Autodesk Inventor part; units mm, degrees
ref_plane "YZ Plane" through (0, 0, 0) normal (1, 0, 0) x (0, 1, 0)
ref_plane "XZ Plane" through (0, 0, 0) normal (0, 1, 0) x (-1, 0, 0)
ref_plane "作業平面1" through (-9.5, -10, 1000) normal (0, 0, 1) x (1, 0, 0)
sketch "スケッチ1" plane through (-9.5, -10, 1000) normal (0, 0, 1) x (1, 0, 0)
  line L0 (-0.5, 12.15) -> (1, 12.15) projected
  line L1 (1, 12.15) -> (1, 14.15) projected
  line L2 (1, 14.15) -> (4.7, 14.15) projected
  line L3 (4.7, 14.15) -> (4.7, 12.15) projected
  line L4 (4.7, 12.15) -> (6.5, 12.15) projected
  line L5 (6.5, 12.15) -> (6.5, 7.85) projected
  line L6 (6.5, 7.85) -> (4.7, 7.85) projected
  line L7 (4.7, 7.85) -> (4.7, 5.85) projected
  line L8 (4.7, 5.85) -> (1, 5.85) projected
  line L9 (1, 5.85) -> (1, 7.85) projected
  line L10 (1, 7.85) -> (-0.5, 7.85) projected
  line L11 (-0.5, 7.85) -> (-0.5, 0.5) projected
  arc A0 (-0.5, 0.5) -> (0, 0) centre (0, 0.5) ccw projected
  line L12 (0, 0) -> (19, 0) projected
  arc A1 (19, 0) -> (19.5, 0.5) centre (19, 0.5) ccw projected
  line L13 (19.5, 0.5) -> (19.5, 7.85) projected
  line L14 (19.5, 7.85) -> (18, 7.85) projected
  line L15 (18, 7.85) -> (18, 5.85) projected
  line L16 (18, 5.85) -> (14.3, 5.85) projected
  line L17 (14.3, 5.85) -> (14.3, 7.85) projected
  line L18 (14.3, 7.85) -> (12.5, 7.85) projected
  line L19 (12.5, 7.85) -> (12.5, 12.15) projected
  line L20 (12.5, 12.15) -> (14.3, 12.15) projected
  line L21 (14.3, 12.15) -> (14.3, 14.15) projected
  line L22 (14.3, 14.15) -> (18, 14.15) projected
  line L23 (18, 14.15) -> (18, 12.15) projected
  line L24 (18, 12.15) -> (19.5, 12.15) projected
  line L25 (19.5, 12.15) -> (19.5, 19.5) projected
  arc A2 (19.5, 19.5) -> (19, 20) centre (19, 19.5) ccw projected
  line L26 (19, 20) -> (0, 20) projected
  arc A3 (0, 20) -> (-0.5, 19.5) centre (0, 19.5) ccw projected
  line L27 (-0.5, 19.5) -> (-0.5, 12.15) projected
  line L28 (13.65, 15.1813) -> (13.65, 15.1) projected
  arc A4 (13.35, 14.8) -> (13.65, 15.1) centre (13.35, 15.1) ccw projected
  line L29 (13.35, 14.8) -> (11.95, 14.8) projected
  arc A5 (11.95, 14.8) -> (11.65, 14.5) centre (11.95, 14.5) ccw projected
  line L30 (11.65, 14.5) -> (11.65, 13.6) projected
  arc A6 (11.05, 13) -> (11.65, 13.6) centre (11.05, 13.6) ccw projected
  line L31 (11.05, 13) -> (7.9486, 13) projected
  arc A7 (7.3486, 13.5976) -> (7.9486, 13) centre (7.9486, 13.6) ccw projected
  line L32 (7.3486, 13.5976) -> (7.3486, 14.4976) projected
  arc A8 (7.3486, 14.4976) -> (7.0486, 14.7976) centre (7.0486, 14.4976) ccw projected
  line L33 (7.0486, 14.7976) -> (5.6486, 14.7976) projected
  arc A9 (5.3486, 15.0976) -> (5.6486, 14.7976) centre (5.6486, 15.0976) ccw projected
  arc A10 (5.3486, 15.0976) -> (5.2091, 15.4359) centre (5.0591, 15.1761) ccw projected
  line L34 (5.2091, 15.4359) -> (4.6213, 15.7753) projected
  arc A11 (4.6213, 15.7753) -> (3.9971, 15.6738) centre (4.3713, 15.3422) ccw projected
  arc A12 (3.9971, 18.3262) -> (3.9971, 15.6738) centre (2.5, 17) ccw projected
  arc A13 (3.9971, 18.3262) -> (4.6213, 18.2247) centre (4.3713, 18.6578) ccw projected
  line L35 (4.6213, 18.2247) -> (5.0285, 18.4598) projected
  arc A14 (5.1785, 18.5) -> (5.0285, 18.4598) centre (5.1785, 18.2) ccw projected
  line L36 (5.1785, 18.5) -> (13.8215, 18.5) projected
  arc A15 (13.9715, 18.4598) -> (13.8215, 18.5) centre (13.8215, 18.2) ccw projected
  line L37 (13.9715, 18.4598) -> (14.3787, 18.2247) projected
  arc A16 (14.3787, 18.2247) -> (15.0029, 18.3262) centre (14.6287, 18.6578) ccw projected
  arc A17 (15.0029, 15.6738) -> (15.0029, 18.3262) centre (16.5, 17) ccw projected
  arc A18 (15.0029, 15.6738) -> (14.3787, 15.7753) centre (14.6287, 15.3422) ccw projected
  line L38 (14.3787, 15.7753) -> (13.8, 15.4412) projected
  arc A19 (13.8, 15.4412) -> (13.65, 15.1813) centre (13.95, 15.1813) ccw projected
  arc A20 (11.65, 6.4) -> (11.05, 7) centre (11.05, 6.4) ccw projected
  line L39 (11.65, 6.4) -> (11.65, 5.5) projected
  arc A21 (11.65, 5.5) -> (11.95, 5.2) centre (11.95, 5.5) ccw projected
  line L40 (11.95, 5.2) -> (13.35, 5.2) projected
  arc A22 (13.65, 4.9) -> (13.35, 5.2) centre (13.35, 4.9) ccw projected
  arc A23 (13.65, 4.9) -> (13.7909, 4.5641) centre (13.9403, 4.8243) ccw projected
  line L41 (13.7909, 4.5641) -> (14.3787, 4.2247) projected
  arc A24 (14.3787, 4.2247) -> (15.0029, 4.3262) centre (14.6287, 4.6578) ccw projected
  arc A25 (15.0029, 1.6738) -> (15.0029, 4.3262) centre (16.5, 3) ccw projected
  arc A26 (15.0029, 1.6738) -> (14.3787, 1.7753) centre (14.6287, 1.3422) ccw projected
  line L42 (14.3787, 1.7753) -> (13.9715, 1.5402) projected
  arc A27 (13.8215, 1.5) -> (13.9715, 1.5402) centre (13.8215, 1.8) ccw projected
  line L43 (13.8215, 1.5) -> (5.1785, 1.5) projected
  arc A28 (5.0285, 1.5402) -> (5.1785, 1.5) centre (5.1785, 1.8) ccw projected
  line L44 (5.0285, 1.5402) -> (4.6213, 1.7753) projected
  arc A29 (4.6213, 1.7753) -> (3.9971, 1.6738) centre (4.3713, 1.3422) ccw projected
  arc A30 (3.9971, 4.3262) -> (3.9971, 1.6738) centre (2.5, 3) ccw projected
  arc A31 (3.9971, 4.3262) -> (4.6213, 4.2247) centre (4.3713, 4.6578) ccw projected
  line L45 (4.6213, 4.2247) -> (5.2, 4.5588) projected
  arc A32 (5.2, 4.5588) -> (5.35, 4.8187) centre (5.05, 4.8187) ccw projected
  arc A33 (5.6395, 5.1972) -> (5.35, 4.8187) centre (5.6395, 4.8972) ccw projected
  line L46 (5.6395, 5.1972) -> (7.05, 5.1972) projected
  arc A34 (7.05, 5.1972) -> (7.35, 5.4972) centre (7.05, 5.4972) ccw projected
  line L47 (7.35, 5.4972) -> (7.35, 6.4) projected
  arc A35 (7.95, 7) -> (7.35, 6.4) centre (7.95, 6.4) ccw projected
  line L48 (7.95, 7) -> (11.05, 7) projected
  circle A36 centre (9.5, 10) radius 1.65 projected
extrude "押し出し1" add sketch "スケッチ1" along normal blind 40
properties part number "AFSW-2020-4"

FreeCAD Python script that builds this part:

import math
import FreeCAD as App
import Part
import Sketcher
from FreeCAD import Vector
Q = App.Units.Quantity

doc = App.newDocument("Part")
body = doc.addObject("PartDesign::Body", "Body")

# Sketch on XY plane
sketch1 = body.newObject("Sketcher::SketchObject", "Sketch")
sketch1.AttachmentSupport = (doc.getObject("XY_Plane"), [""])
sketch1.MapMode = "FlatFace"
sketch1.AttachmentOffset = App.Placement(Vector(0, 0, 1000), App.Rotation())
sketch1.addGeometry([
    Part.LineSegment(Vector(-10, 9.5, 0), Vector(-10, 2.15, 0)),  # 0
    Part.LineSegment(Vector(-10, 2.15, 0), Vector(-8.5, 2.15, 0)),  # 1
    Part.LineSegment(Vector(-8.5, 2.15, 0), Vector(-8.5, 4.15, 0)),  # 2
    Part.LineSegment(Vector(-8.5, 4.15, 0), Vector(-4.8, 4.15, 0)),  # 3
    Part.LineSegment(Vector(-4.8, 4.15, 0), Vector(-4.8, 2.15, 0)),  # 4
    Part.LineSegment(Vector(-4.8, 2.15, 0), Vector(-3, 2.15, 0)),  # 5
    Part.LineSegment(Vector(-3, 2.15, 0), Vector(-3, -2.15, 0)),  # 6
    Part.LineSegment(Vector(-3, -2.15, 0), Vector(-4.8, -2.15, 0)),  # 7
    Part.LineSegment(Vector(-4.8, -2.15, 0), Vector(-4.8, -4.15, 0)),  # 8
    Part.LineSegment(Vector(-4.8, -4.15, 0), Vector(-8.5, -4.15, 0)),  # 9
    Part.LineSegment(Vector(-8.5, -4.15, 0), Vector(-8.5, -2.15, 0)),  # 10
    Part.LineSegment(Vector(-8.5, -2.15, 0), Vector(-10, -2.15, 0)),  # 11
    Part.LineSegment(Vector(-10, -2.15, 0), Vector(-10, -9.5, 0)),  # 12
    Part.ArcOfCircle(Part.Circle(Vector(-9.5, -9.5, 0), Vector(0, 0, 1), 0.5), math.radians(180), math.radians(270)),  # 13
    Part.LineSegment(Vector(-9.5, -10, 0), Vector(9.5, -10, 0)),  # 14
    Part.ArcOfCircle(Part.Circle(Vector(9.5, -9.5, 0), Vector(0, 0, 1), 0.5), math.radians(-90), math.radians(0)),  # 15
    Part.LineSegment(Vector(10, -9.5, 0), Vector(10, -2.15, 0)),  # 16
    Part.LineSegment(Vector(10, -2.15, 0), Vector(8.5, -2.15, 0)),  # 17
    Part.LineSegment(Vector(8.5, -2.15, 0), Vector(8.5, -4.15, 0)),  # 18
    Part.LineSegment(Vector(8.5, -4.15, 0), Vector(4.8, -4.15, 0)),  # 19
    Part.LineSegment(Vector(4.8, -4.15, 0), Vector(4.8, -2.15, 0)),  # 20
    Part.LineSegment(Vector(4.8, -2.15, 0), Vector(3, -2.15, 0)),  # 21
    Part.LineSegment(Vector(3, -2.15, 0), Vector(3, 2.15, 0)),  # 22
    Part.LineSegment(Vector(3, 2.15, 0), Vector(4.8, 2.15, 0)),  # 23
    Part.LineSegment(Vector(4.8, 2.15, 0), Vector(4.8, 4.15, 0)),  # 24
    Part.LineSegment(Vector(4.8, 4.15, 0), Vector(8.5, 4.15, 0)),  # 25
    Part.LineSegment(Vector(8.5, 4.15, 0), Vector(8.5, 2.15, 0)),  # 26
    Part.LineSegment(Vector(8.5, 2.15, 0), Vector(10, 2.15, 0)),  # 27
    Part.LineSegment(Vector(10, 2.15, 0), Vector(10, 9.5, 0)),  # 28
    Part.ArcOfCircle(Part.Circle(Vector(9.5, 9.5, 0), Vector(0, 0, 1), 0.5), math.radians(0), math.radians(90)),  # 29
    Part.LineSegment(Vector(9.5, 10, 0), Vector(-9.5, 10, 0)),  # 30
    Part.ArcOfCircle(Part.Circle(Vector(-9.5, 9.5, 0), Vector(0, 0, 1), 0.5), math.radians(90), math.radians(180)),  # 31
    Part.ArcOfCircle(Part.Circle(Vector(1.55, -3.6, 0), Vector(0, 0, 1), 0.6), math.radians(0), math.radians(90)),  # 32
    Part.LineSegment(Vector(2.15, -3.6, 0), Vector(2.15, -4.5, 0)),  # 33
    Part.ArcOfCircle(Part.Circle(Vector(2.45, -4.5, 0), Vector(0, 0, 1), 0.3), math.radians(180), math.radians(270)),  # 34
    Part.LineSegment(Vector(2.45, -4.8, 0), Vector(3.85, -4.8, 0)),  # 35
    Part.ArcOfCircle(Part.Circle(Vector(3.85, -5.1, 0), Vector(0, 0, 1), 0.3), math.radians(0), math.radians(90)),  # 36
    Part.ArcOfCircle(Part.Circle(Vector(4.44, -5.18, 0), Vector(0, 0, 1), 0.3), math.radians(165), math.radians(240)),  # 37
    Part.LineSegment(Vector(4.29, -5.44, 0), Vector(4.88, -5.78, 0)),  # 38
    Part.ArcOfCircle(Part.Circle(Vector(5.13, -5.34, 0), Vector(0, 0, 1), 0.5), math.radians(-120), math.radians(-42)),  # 39
    Part.ArcOfCircle(Part.Circle(Vector(7, -7, 0), Vector(0, 0, 1), 2), math.radians(-138), math.radians(138)),  # 40
    Part.ArcOfCircle(Part.Circle(Vector(5.13, -8.66, 0), Vector(0, 0, 1), 0.5), math.radians(42), math.radians(120)),  # 41
    Part.LineSegment(Vector(4.88, -8.22, 0), Vector(4.47, -8.46, 0)),  # 42
    Part.ArcOfCircle(Part.Circle(Vector(4.32, -8.2, 0), Vector(0, 0, 1), 0.3), math.radians(-90), math.radians(-60)),  # 43
    Part.LineSegment(Vector(4.32, -8.5, 0), Vector(-4.32, -8.5, 0)),  # 44
    Part.ArcOfCircle(Part.Circle(Vector(-4.32, -8.2, 0), Vector(0, 0, 1), 0.3), math.radians(-120), math.radians(-90)),  # 45
    Part.LineSegment(Vector(-4.47, -8.46, 0), Vector(-4.88, -8.22, 0)),  # 46
    Part.ArcOfCircle(Part.Circle(Vector(-5.13, -8.66, 0), Vector(0, 0, 1), 0.5), math.radians(60), math.radians(138)),  # 47
    Part.ArcOfCircle(Part.Circle(Vector(-7, -7, 0), Vector(0, 0, 1), 2), math.radians(42), math.radians(318)),  # 48
    Part.ArcOfCircle(Part.Circle(Vector(-5.13, -5.34, 0), Vector(0, 0, 1), 0.5), math.radians(-138), math.radians(-60)),  # 49
    Part.LineSegment(Vector(-4.88, -5.78, 0), Vector(-4.3, -5.44, 0)),  # 50
    Part.ArcOfCircle(Part.Circle(Vector(-4.45, -5.18, 0), Vector(0, 0, 1), 0.3), math.radians(-60), math.radians(0)),  # 51
    Part.ArcOfCircle(Part.Circle(Vector(-3.86, -5.1, 0), Vector(0, 0, 1), 0.3), math.radians(90), math.radians(195)),  # 52
    Part.LineSegment(Vector(-3.86, -4.8, 0), Vector(-2.45, -4.8, 0)),  # 53
    Part.ArcOfCircle(Part.Circle(Vector(-2.45, -4.5, 0), Vector(0, 0, 1), 0.3), math.radians(-90), math.radians(0)),  # 54
    Part.LineSegment(Vector(-2.15, -4.5, 0), Vector(-2.15, -3.6, 0)),  # 55
    Part.ArcOfCircle(Part.Circle(Vector(-1.55, -3.6, 0), Vector(0, 0, 1), 0.6), math.radians(90), math.radians(180)),  # 56
    Part.LineSegment(Vector(-1.55, -3, 0), Vector(1.55, -3, 0)),  # 57
    Part.Circle(Vector(0, 0, 0), Vector(0, 0, 1), 1.65),  # 58
    Part.ArcOfCircle(Part.Circle(Vector(4.45, 5.18, 0), Vector(0, 0, 1), 0.3), math.radians(120), math.radians(180)),  # 59
    Part.LineSegment(Vector(4.15, 5.18, 0), Vector(4.15, 5.1, 0)),  # 60
    Part.ArcOfCircle(Part.Circle(Vector(3.85, 5.1, 0), Vector(0, 0, 1), 0.3), math.radians(-90), math.radians(0)),  # 61
    Part.LineSegment(Vector(3.85, 4.8, 0), Vector(2.45, 4.8, 0)),  # 62
    Part.ArcOfCircle(Part.Circle(Vector(2.45, 4.5, 0), Vector(0, 0, 1), 0.3), math.radians(90), math.radians(180)),  # 63
    Part.LineSegment(Vector(2.15, 4.5, 0), Vector(2.15, 3.6, 0)),  # 64
    Part.ArcOfCircle(Part.Circle(Vector(1.55, 3.6, 0), Vector(0, 0, 1), 0.6), math.radians(-90), math.radians(0)),  # 65
    Part.LineSegment(Vector(1.55, 3, 0), Vector(-1.55, 3, 0)),  # 66
    Part.ArcOfCircle(Part.Circle(Vector(-1.55, 3.6, 0), Vector(0, 0, 1), 0.6), math.radians(-180), math.radians(-90)),  # 67
    Part.LineSegment(Vector(-2.15, 3.6, 0), Vector(-2.15, 4.5, 0)),  # 68
    Part.ArcOfCircle(Part.Circle(Vector(-2.45, 4.5, 0), Vector(0, 0, 1), 0.3), math.radians(0), math.radians(90)),  # 69
    Part.LineSegment(Vector(-2.45, 4.8, 0), Vector(-3.85, 4.8, 0)),  # 70
    Part.ArcOfCircle(Part.Circle(Vector(-3.85, 5.1, 0), Vector(0, 0, 1), 0.3), math.radians(180), math.radians(270)),  # 71
    Part.ArcOfCircle(Part.Circle(Vector(-4.44, 5.18, 0), Vector(0, 0, 1), 0.3), math.radians(-15), math.radians(60)),  # 72
    Part.LineSegment(Vector(-4.29, 5.44, 0), Vector(-4.88, 5.78, 0)),  # 73
    Part.ArcOfCircle(Part.Circle(Vector(-5.13, 5.34, 0), Vector(0, 0, 1), 0.5), math.radians(60), math.radians(138)),  # 74
    Part.ArcOfCircle(Part.Circle(Vector(-7, 7, 0), Vector(0, 0, 1), 2), math.radians(42), math.radians(318)),  # 75
    Part.ArcOfCircle(Part.Circle(Vector(-5.13, 8.66, 0), Vector(0, 0, 1), 0.5), math.radians(-138), math.radians(-60)),  # 76
    Part.LineSegment(Vector(-4.88, 8.22, 0), Vector(-4.47, 8.46, 0)),  # 77
    Part.ArcOfCircle(Part.Circle(Vector(-4.32, 8.2, 0), Vector(0, 0, 1), 0.3), math.radians(90), math.radians(120)),  # 78
    Part.LineSegment(Vector(-4.32, 8.5, 0), Vector(4.32, 8.5, 0)),  # 79
    Part.ArcOfCircle(Part.Circle(Vector(4.32, 8.2, 0), Vector(0, 0, 1), 0.3), math.radians(60), math.radians(90)),  # 80
    Part.LineSegment(Vector(4.47, 8.46, 0), Vector(4.88, 8.22, 0)),  # 81
    Part.ArcOfCircle(Part.Circle(Vector(5.13, 8.66, 0), Vector(0, 0, 1), 0.5), math.radians(-120), math.radians(-42)),  # 82
    Part.ArcOfCircle(Part.Circle(Vector(7, 7, 0), Vector(0, 0, 1), 2), math.radians(-138), math.radians(138)),  # 83
    Part.ArcOfCircle(Part.Circle(Vector(5.13, 5.34, 0), Vector(0, 0, 1), 0.5), math.radians(42), math.radians(120)),  # 84
    Part.LineSegment(Vector(4.88, 5.78, 0), Vector(4.3, 5.44, 0)),  # 85
], False)
sketch1.addConstraint([
    Sketcher.Constraint("Coincident", 0, 2, 1, 1),
    Sketcher.Constraint("Coincident", 1, 2, 2, 1),
    Sketcher.Constraint("Coincident", 2, 2, 3, 1),
    Sketcher.Constraint("Coincident", 3, 2, 4, 1),
    Sketcher.Constraint("Coincident", 4, 2, 5, 1),
    Sketcher.Constraint("Coincident", 5, 2, 6, 1),
    Sketcher.Constraint("Coincident", 6, 2, 7, 1),
    Sketcher.Constraint("Coincident", 7, 2, 8, 1),
    Sketcher.Constraint("Coincident", 8, 2, 9, 1),
    Sketcher.Constraint("Coincident", 9, 2, 10, 1),
    Sketcher.Constraint("Coincident", 10, 2, 11, 1),
    Sketcher.Constraint("Coincident", 11, 2, 12, 1),
    Sketcher.Constraint("Tangent", 12, 2, 13, 1),
    Sketcher.Constraint("Tangent", 13, 2, 14, 1),
    Sketcher.Constraint("Tangent", 14, 2, 15, 1),
    Sketcher.Constraint("Tangent", 15, 2, 16, 1),
    Sketcher.Constraint("Coincident", 16, 2, 17, 1),
    Sketcher.Constraint("Coincident", 17, 2, 18, 1),
    Sketcher.Constraint("Coincident", 18, 2, 19, 1),
    Sketcher.Constraint("Coincident", 19, 2, 20, 1),
    Sketcher.Constraint("Coincident", 20, 2, 21, 1),
    Sketcher.Constraint("Coincident", 21, 2, 22, 1),
    Sketcher.Constraint("Coincident", 22, 2, 23, 1),
    Sketcher.Constraint("Coincident", 23, 2, 24, 1),
    Sketcher.Constraint("Coincident", 24, 2, 25, 1),
    Sketcher.Constraint("Coincident", 25, 2, 26, 1),
    Sketcher.Constraint("Coincident", 26, 2, 27, 1),
    Sketcher.Constraint("Coincident", 27, 2, 28, 1),
    Sketcher.Constraint("Tangent", 28, 2, 29, 1),
    Sketcher.Constraint("Tangent", 29, 2, 30, 1),
    Sketcher.Constraint("Tangent", 30, 2, 31, 1),
    Sketcher.Constraint("Tangent", 31, 2, 0, 1),
    Sketcher.Constraint("Tangent", 32, 1, 33, 1),
    Sketcher.Constraint("Tangent", 33, 2, 34, 1),
    Sketcher.Constraint("Tangent", 34, 2, 35, 1),
    Sketcher.Constraint("Tangent", 35, 2, 36, 2),
    Sketcher.Constraint("Coincident", 36, 1, 37, 1),
    Sketcher.Constraint("Coincident", 37, 2, 38, 1),
    Sketcher.Constraint("Tangent", 38, 2, 39, 1),
    Sketcher.Constraint("Tangent", 39, 2, 40, 2),
    Sketcher.Constraint("Tangent", 40, 1, 41, 1),
    Sketcher.Constraint("Tangent", 41, 2, 42, 1),
    Sketcher.Constraint("Tangent", 42, 2, 43, 2),
    Sketcher.Constraint("Tangent", 43, 1, 44, 1),
    Sketcher.Constraint("Tangent", 44, 2, 45, 2),
    Sketcher.Constraint("Tangent", 45, 1, 46, 1),
    Sketcher.Constraint("Tangent", 46, 2, 47, 1),
    Sketcher.Constraint("Tangent", 47, 2, 48, 2),
    Sketcher.Constraint("Tangent", 48, 1, 49, 1),
    Sketcher.Constraint("Tangent", 49, 2, 50, 1),
    Sketcher.Constraint("Tangent", 50, 2, 51, 1),
    Sketcher.Constraint("Coincident", 51, 2, 52, 2),
    Sketcher.Constraint("Tangent", 52, 1, 53, 1),
    Sketcher.Constraint("Tangent", 53, 2, 54, 1),
    Sketcher.Constraint("Tangent", 54, 2, 55, 1),
    Sketcher.Constraint("Tangent", 55, 2, 56, 2),
    Sketcher.Constraint("Tangent", 56, 1, 57, 1),
    Sketcher.Constraint("Tangent", 57, 2, 32, 2),
    Sketcher.Constraint("Tangent", 59, 2, 60, 1),
    Sketcher.Constraint("Tangent", 60, 2, 61, 2),
    Sketcher.Constraint("Tangent", 61, 1, 62, 1),
    Sketcher.Constraint("Tangent", 62, 2, 63, 1),
    Sketcher.Constraint("Tangent", 63, 2, 64, 1),
    Sketcher.Constraint("Tangent", 64, 2, 65, 2),
    Sketcher.Constraint("Tangent", 65, 1, 66, 1),
    Sketcher.Constraint("Tangent", 66, 2, 67, 2),
    Sketcher.Constraint("Coincident", 67, 1, 68, 1),
    Sketcher.Constraint("Tangent", 68, 2, 69, 1),
    Sketcher.Constraint("Tangent", 69, 2, 70, 1),
    Sketcher.Constraint("Tangent", 70, 2, 71, 2),
    Sketcher.Constraint("Coincident", 71, 1, 72, 1),
    Sketcher.Constraint("Tangent", 72, 2, 73, 1),
    Sketcher.Constraint("Tangent", 73, 2, 74, 1),
    Sketcher.Constraint("Tangent", 74, 2, 75, 2),
    Sketcher.Constraint("Tangent", 75, 1, 76, 1),
    Sketcher.Constraint("Tangent", 76, 2, 77, 1),
    Sketcher.Constraint("Tangent", 77, 2, 78, 2),
    Sketcher.Constraint("Tangent", 78, 1, 79, 1),
    Sketcher.Constraint("Tangent", 79, 2, 80, 2),
    Sketcher.Constraint("Tangent", 80, 1, 81, 1),
    Sketcher.Constraint("Tangent", 81, 2, 82, 1),
    Sketcher.Constraint("Tangent", 82, 2, 83, 2),
    Sketcher.Constraint("Tangent", 83, 1, 84, 1),
    Sketcher.Constraint("Tangent", 84, 2, 85, 1),
    Sketcher.Constraint("Tangent", 85, 2, 59, 1),
    Sketcher.Constraint("Vertical", 0),
    Sketcher.Constraint("Horizontal", 1),
    Sketcher.Constraint("Vertical", 2),
    Sketcher.Constraint("Horizontal", 3),
    Sketcher.Constraint("Vertical", 4),
    Sketcher.Constraint("Horizontal", 5),
    Sketcher.Constraint("Vertical", 6),
    Sketcher.Constraint("Horizontal", 7),
    Sketcher.Constraint("Vertical", 8),
    Sketcher.Constraint("Horizontal", 9),
    Sketcher.Constraint("Vertical", 10),
    Sketcher.Constraint("Horizontal", 11),
    Sketcher.Constraint("Vertical", 12),
    Sketcher.Constraint("Horizontal", 14),
    Sketcher.Constraint("Vertical", 16),
    Sketcher.Constraint("Horizontal", 17),
    Sketcher.Constraint("Vertical", 18),
    Sketcher.Constraint("Horizontal", 19),
    Sketcher.Constraint("Vertical", 20),
    Sketcher.Constraint("Horizontal", 21),
    Sketcher.Constraint("Vertical", 22),
    Sketcher.Constraint("Horizontal", 23),
    Sketcher.Constraint("Vertical", 24),
    Sketcher.Constraint("Horizontal", 25),
    Sketcher.Constraint("Vertical", 26),
    Sketcher.Constraint("Horizontal", 27),
    Sketcher.Constraint("Vertical", 28),
    Sketcher.Constraint("Horizontal", 30),
    Sketcher.Constraint("Vertical", 33),
    Sketcher.Constraint("Horizontal", 35),
    Sketcher.Constraint("Horizontal", 44),
    Sketcher.Constraint("Horizontal", 53),
    Sketcher.Constraint("Vertical", 55),
    Sketcher.Constraint("Horizontal", 57),
    Sketcher.Constraint("Vertical", 60),
    Sketcher.Constraint("Horizontal", 62),
    Sketcher.Constraint("Vertical", 64),
    Sketcher.Constraint("Horizontal", 66),
    Sketcher.Constraint("Vertical", 68),
    Sketcher.Constraint("Horizontal", 70),
    Sketcher.Constraint("Horizontal", 79),
    Sketcher.Constraint("Coincident", 58, 3, -1, 1),
    Sketcher.Constraint("Equal", 13, 15),
    Sketcher.Constraint("Equal", 15, 29),
    Sketcher.Constraint("Equal", 29, 31),
    Sketcher.Constraint("Equal", 34, 36),
    Sketcher.Constraint("Equal", 36, 37),
    Sketcher.Constraint("Equal", 31, 39),
    Sketcher.Constraint("Equal", 39, 41),
    Sketcher.Constraint("Equal", 37, 43),
    Sketcher.Constraint("Equal", 43, 45),
    Sketcher.Constraint("Equal", 41, 47),
    Sketcher.Constraint("Equal", 40, 48),
    Sketcher.Constraint("Equal", 47, 49),
    Sketcher.Constraint("Equal", 45, 51),
    Sketcher.Constraint("Equal", 51, 52),
    Sketcher.Constraint("Equal", 52, 54),
    Sketcher.Constraint("Equal", 32, 56),
    Sketcher.Constraint("Equal", 54, 59),
    Sketcher.Constraint("Equal", 59, 61),
    Sketcher.Constraint("Equal", 61, 63),
    Sketcher.Constraint("Equal", 56, 65),
    Sketcher.Constraint("Equal", 65, 67),
    Sketcher.Constraint("Equal", 63, 69),
    Sketcher.Constraint("Equal", 69, 71),
    Sketcher.Constraint("Equal", 71, 72),
    Sketcher.Constraint("Equal", 49, 74),
    Sketcher.Constraint("Equal", 48, 75),
    Sketcher.Constraint("Equal", 74, 76),
    Sketcher.Constraint("Equal", 72, 78),
    Sketcher.Constraint("Equal", 78, 80),
    Sketcher.Constraint("Equal", 76, 82),
    Sketcher.Constraint("Equal", 75, 83),
    Sketcher.Constraint("Equal", 82, 84),
    Sketcher.Constraint("Symmetric", 13, 3, 29, 3, -1, 1),
    Sketcher.Constraint("Symmetric", 51, 3, 59, 3, -1, 1),
    Sketcher.Constraint("Symmetric", 56, 3, 65, 3, -1, 1),
    Sketcher.Constraint("Symmetric", 39, 3, 74, 3, -1, 1),
    Sketcher.Constraint("Symmetric", 41, 3, 76, 3, -1, 1),
    Sketcher.Constraint("Symmetric", 43, 3, 78, 3, -1, 1),
    Sketcher.Constraint("Symmetric", 47, 3, 82, 3, -1, 1),
    Sketcher.Constraint("Symmetric", 49, 3, 84, 3, -1, 1),
    Sketcher.Constraint("Symmetric", 0, 2, 16, 2, -1, 1),
    Sketcher.Constraint("Symmetric", 2, 2, 18, 2, -1, 1),
    Sketcher.Constraint("Symmetric", 4, 2, 20, 2, -1, 1),
    Sketcher.Constraint("Symmetric", 6, 2, 22, 2, -1, 1),
    Sketcher.Constraint("Symmetric", 8, 2, 24, 2, -1, 1),
    Sketcher.Constraint("Symmetric", 10, 2, 26, 2, -1, 1),
    Sketcher.Constraint("Symmetric", 37, 2, 72, 2, -1, 1),
    Sketcher.Constraint("Symmetric", 41, 3, 47, 3, -2),
    Sketcher.Constraint("Symmetric", 39, 3, 49, 3, -2),
    Sketcher.Constraint("Symmetric", 11, 2, 16, 2, -2),
    Sketcher.Constraint("Symmetric", 9, 2, 18, 2, -2),
    Sketcher.Constraint("Symmetric", 7, 2, 20, 2, -2),
    Sketcher.Constraint("Symmetric", 36, 3, 61, 3, -1),
    Sketcher.Constraint("Parallel", 38, 46),
    Sketcher.Constraint("Parallel", 42, 50),
    Sketcher.Constraint("Parallel", 73, 81),
    Sketcher.Constraint("Horizontal", 1, 2, 4, 2),
    Sketcher.Constraint("Horizontal", 42, 2, 45, 1),
    Sketcher.Constraint("Vertical", 39, 3, 41, 3),
    Sketcher.Constraint("Vertical", 34, 3, 63, 3),
    Sketcher.Constraint("Equal", 62, 70),
    Sketcher.Constraint("Equal", 64, 68),
    Sketcher.Constraint("Radius", 40, 2.0),
    Sketcher.Constraint("Diameter", 58, 3.3),
    Sketcher.Constraint("Radius", 13, 0.5),
    Sketcher.Constraint("Radius", 32, 0.6),
    Sketcher.Constraint("Radius", 34, 0.3),
    Sketcher.Constraint("DistanceX", 14, 1, 14, 2, 19.0),
    Sketcher.Constraint("DistanceY", 2, 1, 2, 2, 2.0),
    Sketcher.Constraint("Angle", 42, Q("-149.9997 deg")),
    Sketcher.Constraint("DistanceX", 1, 1, 1, 2, 1.5),
    Sketcher.Constraint("DistanceX", 3, 1, 3, 2, 3.7),
    Sketcher.Constraint("DistanceX", 5, 1, 5, 2, 1.8),
    Sketcher.Constraint("DistanceX", 35, 1, 35, 2, 1.4),
    Sketcher.Constraint("DistanceX", 57, 1, 57, 2, 3.1),
    Sketcher.Constraint("DistanceY", 6, 2, 6, 1, 4.3),
    Sketcher.Constraint("DistanceY", 33, 2, 33, 1, 0.9),
    Sketcher.Constraint("DistanceX", -1, 1, 40, 3, 7.0),
    Sketcher.Constraint("DistanceY", 40, 3, -1, 1, 7.0),
    Sketcher.Constraint("DistanceY", 13, 2, -1, 1, 10.0),
    Sketcher.Constraint("DistanceY", 56, 1, -1, 1, 3.0),
    Sketcher.Constraint("DistanceY", 43, 3, -1, 1, 8.2),
    Sketcher.Constraint("DistanceY", 36, 1, -1, 1, 5.1),
    Sketcher.Constraint("DistanceX", 44, 2, 44, 1, 8.643),
    Sketcher.Constraint("DistanceX", 53, 1, 53, 2, 1.4105),
    Sketcher.Constraint("DistanceX", 66, 2, 66, 1, 3.1014),
    Sketcher.Constraint("DistanceY", 55, 1, 55, 2, 0.9028),
    Sketcher.Constraint("DistanceX", 72, 3, -1, 1, 4.441),
    Sketcher.Constraint("DistanceY", -1, 1, 69, 3, 4.4976),
])
pad1 = body.newObject("PartDesign::Pad", "Pad")
pad1.Profile = sketch1
pad1.Length = 40

doc.recompute()
